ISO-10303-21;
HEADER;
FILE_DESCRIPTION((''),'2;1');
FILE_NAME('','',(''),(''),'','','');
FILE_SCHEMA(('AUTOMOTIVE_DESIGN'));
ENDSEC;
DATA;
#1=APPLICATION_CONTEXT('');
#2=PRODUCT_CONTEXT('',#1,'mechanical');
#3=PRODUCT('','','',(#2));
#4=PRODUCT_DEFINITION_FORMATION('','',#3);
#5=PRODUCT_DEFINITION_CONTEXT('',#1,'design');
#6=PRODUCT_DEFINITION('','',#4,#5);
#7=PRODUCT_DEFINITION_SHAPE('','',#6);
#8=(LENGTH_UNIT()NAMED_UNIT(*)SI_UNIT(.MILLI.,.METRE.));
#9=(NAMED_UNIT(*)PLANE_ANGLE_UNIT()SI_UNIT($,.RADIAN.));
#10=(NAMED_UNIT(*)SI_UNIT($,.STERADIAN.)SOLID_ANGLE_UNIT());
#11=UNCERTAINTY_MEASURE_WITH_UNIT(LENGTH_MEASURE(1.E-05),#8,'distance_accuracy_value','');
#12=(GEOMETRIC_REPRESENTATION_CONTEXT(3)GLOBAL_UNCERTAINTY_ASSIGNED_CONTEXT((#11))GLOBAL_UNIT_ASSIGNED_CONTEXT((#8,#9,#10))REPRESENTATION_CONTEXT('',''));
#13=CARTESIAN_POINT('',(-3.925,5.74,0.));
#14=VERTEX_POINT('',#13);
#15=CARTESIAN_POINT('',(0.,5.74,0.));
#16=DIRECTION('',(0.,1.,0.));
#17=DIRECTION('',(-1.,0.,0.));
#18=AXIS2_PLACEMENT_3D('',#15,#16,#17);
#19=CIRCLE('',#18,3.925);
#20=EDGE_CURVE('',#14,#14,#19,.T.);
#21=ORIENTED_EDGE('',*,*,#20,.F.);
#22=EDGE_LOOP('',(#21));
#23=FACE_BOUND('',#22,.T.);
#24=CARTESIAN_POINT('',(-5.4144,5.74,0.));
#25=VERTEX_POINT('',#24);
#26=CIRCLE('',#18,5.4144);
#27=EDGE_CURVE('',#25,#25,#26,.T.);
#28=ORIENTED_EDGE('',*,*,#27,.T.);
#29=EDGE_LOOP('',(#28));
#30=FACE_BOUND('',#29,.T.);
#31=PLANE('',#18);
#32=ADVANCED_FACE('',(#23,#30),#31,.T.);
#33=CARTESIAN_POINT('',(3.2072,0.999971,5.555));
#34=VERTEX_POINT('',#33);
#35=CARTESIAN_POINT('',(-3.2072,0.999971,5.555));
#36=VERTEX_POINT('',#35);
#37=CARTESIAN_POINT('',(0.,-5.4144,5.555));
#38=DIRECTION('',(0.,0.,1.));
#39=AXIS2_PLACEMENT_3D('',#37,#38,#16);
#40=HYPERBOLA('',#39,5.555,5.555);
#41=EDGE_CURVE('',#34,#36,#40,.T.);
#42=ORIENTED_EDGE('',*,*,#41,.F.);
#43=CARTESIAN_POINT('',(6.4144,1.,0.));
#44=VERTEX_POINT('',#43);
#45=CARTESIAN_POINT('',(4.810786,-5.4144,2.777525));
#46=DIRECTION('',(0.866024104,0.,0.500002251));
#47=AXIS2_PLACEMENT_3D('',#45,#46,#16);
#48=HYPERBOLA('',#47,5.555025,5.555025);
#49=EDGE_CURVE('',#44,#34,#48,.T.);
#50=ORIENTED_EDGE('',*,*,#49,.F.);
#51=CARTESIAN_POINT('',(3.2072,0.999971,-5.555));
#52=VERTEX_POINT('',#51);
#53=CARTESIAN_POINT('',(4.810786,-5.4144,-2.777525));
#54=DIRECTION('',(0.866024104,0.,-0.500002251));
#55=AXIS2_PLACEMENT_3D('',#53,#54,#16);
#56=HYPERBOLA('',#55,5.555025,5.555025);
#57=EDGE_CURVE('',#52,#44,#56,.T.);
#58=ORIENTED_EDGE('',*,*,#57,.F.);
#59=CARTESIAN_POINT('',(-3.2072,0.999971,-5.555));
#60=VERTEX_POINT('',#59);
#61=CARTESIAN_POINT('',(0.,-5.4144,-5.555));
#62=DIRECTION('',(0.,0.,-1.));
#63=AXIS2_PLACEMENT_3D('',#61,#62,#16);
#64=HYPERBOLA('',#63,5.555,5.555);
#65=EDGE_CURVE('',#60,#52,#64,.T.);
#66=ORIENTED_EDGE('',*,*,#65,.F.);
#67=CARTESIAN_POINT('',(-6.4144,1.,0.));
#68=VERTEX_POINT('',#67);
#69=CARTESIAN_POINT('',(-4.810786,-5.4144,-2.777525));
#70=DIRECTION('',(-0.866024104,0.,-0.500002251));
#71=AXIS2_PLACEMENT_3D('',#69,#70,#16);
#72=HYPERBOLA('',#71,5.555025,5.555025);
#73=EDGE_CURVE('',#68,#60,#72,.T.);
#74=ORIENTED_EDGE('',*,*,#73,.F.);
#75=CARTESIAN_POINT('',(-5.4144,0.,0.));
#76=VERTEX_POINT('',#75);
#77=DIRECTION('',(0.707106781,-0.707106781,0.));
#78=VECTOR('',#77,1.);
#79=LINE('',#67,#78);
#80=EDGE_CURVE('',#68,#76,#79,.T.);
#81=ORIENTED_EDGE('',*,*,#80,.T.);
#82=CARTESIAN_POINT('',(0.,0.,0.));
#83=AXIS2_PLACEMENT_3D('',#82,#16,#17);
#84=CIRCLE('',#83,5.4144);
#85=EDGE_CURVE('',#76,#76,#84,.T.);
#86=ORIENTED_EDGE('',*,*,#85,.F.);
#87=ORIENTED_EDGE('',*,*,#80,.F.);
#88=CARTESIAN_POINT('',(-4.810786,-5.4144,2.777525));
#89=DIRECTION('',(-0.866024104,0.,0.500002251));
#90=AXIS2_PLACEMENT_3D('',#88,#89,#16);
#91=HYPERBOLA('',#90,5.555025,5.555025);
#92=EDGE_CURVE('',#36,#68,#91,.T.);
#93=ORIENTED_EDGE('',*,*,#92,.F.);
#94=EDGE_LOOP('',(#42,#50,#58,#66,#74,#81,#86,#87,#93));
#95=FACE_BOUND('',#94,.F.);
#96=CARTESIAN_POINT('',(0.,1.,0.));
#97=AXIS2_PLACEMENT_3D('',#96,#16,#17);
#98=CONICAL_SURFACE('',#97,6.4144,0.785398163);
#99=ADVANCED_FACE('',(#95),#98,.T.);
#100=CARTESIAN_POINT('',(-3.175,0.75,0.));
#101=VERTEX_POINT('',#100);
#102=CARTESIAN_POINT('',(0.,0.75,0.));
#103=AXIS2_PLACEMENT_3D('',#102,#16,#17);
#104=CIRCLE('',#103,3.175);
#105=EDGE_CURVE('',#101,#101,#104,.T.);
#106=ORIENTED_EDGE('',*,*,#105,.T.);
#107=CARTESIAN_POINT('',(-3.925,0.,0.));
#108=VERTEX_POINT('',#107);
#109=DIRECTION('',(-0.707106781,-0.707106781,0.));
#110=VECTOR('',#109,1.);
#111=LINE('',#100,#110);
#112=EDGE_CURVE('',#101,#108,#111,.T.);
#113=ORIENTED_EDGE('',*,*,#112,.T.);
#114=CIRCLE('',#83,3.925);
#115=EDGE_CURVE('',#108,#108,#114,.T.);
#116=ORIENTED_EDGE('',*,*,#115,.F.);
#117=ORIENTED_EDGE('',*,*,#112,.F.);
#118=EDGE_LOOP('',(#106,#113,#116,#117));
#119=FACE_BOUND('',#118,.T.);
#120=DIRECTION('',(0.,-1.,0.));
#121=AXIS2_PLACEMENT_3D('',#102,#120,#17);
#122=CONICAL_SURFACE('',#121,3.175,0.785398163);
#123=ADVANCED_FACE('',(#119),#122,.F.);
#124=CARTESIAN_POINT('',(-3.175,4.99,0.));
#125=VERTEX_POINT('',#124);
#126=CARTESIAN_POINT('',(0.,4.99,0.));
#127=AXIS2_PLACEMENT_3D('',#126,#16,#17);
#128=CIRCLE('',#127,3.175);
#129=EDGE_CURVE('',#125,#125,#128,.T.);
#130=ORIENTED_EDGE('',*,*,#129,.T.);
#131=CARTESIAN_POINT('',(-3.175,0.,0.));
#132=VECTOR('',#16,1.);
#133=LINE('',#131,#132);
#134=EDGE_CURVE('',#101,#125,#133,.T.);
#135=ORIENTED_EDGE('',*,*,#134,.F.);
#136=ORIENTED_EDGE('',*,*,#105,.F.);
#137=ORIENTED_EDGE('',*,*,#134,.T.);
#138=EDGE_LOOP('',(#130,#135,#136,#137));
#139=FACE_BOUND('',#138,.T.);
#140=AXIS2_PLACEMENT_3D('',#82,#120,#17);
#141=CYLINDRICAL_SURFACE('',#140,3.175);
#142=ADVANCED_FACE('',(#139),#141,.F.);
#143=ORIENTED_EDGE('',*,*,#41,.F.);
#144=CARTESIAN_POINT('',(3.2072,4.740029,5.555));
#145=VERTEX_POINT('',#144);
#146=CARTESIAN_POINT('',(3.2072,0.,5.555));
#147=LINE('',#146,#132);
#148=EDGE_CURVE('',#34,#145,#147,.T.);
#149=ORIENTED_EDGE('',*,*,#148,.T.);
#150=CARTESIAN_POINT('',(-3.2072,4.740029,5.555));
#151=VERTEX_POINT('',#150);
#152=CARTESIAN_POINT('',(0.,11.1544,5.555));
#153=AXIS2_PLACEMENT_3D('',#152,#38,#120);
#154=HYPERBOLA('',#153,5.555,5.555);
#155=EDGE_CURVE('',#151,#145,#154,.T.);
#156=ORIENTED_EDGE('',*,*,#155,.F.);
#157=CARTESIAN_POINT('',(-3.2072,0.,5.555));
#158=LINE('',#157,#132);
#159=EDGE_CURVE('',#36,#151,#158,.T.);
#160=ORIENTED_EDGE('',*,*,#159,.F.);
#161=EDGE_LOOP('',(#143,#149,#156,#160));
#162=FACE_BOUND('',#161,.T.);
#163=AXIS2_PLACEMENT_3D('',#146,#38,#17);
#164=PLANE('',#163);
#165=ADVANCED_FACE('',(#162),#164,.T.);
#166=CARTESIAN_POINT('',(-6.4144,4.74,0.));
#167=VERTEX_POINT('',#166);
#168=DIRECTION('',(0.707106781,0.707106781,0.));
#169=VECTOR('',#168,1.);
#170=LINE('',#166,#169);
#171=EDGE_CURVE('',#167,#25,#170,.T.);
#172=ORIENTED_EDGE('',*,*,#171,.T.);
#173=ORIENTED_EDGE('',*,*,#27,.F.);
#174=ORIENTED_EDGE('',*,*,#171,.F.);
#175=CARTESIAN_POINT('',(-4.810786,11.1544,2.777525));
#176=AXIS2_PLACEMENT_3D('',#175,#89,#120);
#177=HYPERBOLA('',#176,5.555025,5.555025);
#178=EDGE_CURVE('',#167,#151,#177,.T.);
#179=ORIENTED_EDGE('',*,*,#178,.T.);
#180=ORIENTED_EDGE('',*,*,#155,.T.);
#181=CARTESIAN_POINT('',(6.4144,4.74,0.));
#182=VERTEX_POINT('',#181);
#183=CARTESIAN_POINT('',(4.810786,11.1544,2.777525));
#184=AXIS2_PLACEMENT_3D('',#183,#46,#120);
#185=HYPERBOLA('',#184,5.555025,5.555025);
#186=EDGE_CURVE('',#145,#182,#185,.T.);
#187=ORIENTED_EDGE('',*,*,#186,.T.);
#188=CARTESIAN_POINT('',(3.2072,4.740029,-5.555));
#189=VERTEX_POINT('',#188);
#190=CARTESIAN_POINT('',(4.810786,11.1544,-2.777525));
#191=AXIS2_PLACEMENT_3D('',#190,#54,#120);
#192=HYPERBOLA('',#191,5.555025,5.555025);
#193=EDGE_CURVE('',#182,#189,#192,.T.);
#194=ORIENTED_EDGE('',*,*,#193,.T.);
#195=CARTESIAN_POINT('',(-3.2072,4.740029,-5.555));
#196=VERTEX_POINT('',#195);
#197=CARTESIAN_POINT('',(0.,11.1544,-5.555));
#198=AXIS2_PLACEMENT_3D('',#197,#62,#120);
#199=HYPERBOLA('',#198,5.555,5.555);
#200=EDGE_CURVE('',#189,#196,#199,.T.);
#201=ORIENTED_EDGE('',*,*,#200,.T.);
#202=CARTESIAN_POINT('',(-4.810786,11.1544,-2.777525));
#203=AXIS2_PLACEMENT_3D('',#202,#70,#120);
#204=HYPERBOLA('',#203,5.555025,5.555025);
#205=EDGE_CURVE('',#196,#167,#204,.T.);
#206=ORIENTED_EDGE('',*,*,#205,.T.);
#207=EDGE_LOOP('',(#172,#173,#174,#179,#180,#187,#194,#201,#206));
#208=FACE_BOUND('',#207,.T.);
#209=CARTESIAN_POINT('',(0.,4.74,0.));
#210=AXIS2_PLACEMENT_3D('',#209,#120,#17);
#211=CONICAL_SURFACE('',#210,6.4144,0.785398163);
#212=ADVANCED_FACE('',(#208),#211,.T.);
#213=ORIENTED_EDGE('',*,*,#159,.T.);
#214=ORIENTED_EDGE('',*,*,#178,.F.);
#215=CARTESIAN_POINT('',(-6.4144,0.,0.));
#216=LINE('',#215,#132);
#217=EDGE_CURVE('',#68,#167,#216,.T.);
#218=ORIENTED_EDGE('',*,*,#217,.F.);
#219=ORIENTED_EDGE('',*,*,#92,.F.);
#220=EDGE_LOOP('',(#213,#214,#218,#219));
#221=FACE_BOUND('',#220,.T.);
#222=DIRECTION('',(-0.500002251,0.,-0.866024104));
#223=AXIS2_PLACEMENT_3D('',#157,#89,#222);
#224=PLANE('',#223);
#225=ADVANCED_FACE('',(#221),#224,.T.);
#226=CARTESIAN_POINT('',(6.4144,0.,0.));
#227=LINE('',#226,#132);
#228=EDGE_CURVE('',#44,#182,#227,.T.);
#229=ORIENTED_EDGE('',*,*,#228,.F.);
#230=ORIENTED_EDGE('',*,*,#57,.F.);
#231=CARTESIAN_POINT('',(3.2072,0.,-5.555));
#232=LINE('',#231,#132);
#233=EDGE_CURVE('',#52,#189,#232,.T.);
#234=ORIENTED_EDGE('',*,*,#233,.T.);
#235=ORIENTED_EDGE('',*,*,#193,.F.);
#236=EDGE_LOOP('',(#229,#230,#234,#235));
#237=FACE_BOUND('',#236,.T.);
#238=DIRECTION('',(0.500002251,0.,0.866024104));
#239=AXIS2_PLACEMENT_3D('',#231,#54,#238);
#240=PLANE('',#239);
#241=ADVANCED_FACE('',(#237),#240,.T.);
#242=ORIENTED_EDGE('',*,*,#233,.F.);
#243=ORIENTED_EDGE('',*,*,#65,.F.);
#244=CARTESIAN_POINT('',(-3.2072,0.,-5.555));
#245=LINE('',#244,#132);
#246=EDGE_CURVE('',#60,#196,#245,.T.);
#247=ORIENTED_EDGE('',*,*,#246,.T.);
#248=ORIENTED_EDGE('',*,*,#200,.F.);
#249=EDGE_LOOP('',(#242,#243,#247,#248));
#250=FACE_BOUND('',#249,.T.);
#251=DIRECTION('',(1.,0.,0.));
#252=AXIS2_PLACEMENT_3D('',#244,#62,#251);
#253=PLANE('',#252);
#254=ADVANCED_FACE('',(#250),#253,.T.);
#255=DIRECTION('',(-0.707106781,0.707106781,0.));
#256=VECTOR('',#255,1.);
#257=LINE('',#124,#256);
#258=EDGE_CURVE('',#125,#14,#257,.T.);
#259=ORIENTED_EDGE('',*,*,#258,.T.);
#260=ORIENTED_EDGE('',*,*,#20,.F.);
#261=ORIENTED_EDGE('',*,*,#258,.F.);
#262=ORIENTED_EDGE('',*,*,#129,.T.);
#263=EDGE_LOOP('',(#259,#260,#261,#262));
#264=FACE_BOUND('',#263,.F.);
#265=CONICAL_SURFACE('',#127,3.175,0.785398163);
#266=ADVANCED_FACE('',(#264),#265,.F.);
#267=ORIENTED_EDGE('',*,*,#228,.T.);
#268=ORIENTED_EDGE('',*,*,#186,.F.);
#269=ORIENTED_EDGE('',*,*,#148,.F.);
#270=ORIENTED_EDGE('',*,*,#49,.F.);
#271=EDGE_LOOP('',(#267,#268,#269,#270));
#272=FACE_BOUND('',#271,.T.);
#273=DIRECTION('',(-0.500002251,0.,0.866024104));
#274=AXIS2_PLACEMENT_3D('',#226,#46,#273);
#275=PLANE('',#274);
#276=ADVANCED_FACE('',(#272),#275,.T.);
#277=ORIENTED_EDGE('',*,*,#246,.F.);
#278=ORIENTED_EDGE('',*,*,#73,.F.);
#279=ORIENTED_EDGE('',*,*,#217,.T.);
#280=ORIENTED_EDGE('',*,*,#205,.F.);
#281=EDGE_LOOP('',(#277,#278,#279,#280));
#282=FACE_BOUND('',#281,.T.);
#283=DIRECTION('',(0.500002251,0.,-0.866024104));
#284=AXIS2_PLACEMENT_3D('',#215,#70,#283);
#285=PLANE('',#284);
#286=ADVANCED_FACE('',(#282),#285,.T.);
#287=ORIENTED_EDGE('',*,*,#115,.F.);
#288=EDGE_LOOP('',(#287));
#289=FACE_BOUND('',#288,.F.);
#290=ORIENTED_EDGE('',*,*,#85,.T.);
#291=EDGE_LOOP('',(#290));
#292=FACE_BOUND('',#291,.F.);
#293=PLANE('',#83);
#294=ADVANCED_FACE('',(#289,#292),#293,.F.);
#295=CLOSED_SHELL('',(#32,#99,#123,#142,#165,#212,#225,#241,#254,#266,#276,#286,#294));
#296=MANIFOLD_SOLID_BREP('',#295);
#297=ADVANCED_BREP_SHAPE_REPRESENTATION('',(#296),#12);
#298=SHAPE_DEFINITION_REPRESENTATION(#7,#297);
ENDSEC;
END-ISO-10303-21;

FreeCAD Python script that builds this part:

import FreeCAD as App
import Part
import Sketcher

V = App.Vector
Q = App.Units.Quantity

doc = App.newDocument("Part")
params = doc.addObject("Spreadsheet::Sheet", "Params")
for row, (alias, value) in enumerate([
    ("sketch1_diameter", "6.35 mm"),
    ("pad1_length", "5.74 mm"),
    ("sketch2_width", "1 mm"),
    ("sketch2_width2", "0.75 mm"),
    ("groove_angle", "360 deg"),
], start=1):
    params.set(f"A{row}", alias)
    params.set(f"B{row}", "=" + value)
    params.setAlias(f"B{row}", alias)

body = doc.addObject("PartDesign::Body", "Body")

# Sketch on XZ plane
sketch1 = body.newObject("Sketcher::SketchObject", "Sketch")
sketch1.AttachmentSupport = (doc.getObject("XZ_Plane"), [""])
sketch1.MapMode = "FlatFace"
sketch1.addGeometry(Part.LineSegment(V(6.4, 0, 0), V(3.2, -5.6, 0)), False)
sketch1.addGeometry(Part.LineSegment(V(3.2, -5.6, 0), V(-3.2, -5.6, 0)), False)
sketch1.addGeometry(Part.LineSegment(V(-3.2, -5.6, 0), V(-6.4, 0, 0)), False)
sketch1.addGeometry(Part.LineSegment(V(-6.4, 0, 0), V(-3.2, 5.6, 0)), False)
sketch1.addGeometry(Part.LineSegment(V(-3.2, 5.6, 0), V(3.2, 5.6, 0)), False)
sketch1.addGeometry(Part.LineSegment(V(3.2, 5.6, 0), V(6.4, 0, 0)), False)
sketch1.addGeometry(Part.Circle(V(0, 0, 0), V(0, 0, 1), 3.2), False)
sketch1.addConstraint(Sketcher.Constraint("Coincident", 0, 2, 1, 1))
sketch1.addConstraint(Sketcher.Constraint("Coincident", 1, 2, 2, 1))
sketch1.addConstraint(Sketcher.Constraint("Coincident", 2, 2, 3, 1))
sketch1.addConstraint(Sketcher.Constraint("Coincident", 3, 2, 4, 1))
sketch1.addConstraint(Sketcher.Constraint("Coincident", 4, 2, 5, 1))
sketch1.addConstraint(Sketcher.Constraint("Coincident", 5, 2, 0, 1))
sketch1.addConstraint(Sketcher.Constraint("Horizontal", 1))
sketch1.addConstraint(Sketcher.Constraint("Horizontal", 4))
sketch1.addConstraint(Sketcher.Constraint("Coincident", 6, 3, -1, 1))
sketch1.addConstraint(Sketcher.Constraint("Symmetric", 0, 2, 3, 2, -1, 1))
sketch1.addConstraint(Sketcher.Constraint("Symmetric", 2, 2, 5, 2, -1, 1))
sketch1.addConstraint(Sketcher.Constraint("PointOnObject", 2, 2, -1))
sketch1.addConstraint(Sketcher.Constraint("Parallel", 2, 5))
sketch1.addConstraint(Sketcher.Constraint("Vertical", 1, 2, 3, 2))
sketch1.addConstraint(Sketcher.Constraint("Diameter", 6, 6.35))
sketch1.addConstraint(Sketcher.Constraint("Angle", 0, Q("-120.0001 deg")))
sketch1.addConstraint(Sketcher.Constraint("DistanceY", 1, 2, 3, 2, 11.11))
sketch1.addConstraint(Sketcher.Constraint("DistanceX", 1, 2, 1, 1, 6.4144))
sketch1.setExpression("Constraints[14]", "Params.sketch1_diameter")
pad1 = body.newObject("PartDesign::Pad", "Pad")
pad1.Profile = sketch1
pad1.setExpression("Length", "Params.pad1_length")
pad1.Reversed = True

# Sketch on XY plane
sketch2 = body.newObject("Sketcher::SketchObject", "Sketch001")
sketch2.AttachmentSupport = (doc.getObject("XY_Plane"), [""])
sketch2.MapMode = "FlatFace"
sketch2.addGeometry(Part.LineSegment(V(-6.4, 0, 0), V(-5.4, 0, 0)), False)
sketch2.addGeometry(Part.LineSegment(V(-5.4, 0, 0), V(-6.4, 1, 0)), False)
sketch2.addGeometry(Part.LineSegment(V(-6.4, 1, 0), V(-6.4, 0, 0)), False)
sketch2.addGeometry(Part.LineSegment(V(-3.9, 0, 0), V(-3.2, 0, 0)), False)
sketch2.addGeometry(Part.LineSegment(V(-3.2, 0, 0), V(-3.2, 0.8, 0)), False)
sketch2.addGeometry(Part.LineSegment(V(-3.2, 0.8, 0), V(-3.9, 0, 0)), False)
sketch2.addGeometry(Part.LineSegment(V(-6.4, 4.7, 0), V(-5.4, 5.7, 0)), False)
sketch2.addGeometry(Part.LineSegment(V(-5.4, 5.7, 0), V(-6.4, 5.7, 0)), False)
sketch2.addGeometry(Part.LineSegment(V(-6.4, 5.7, 0), V(-6.4, 4.7, 0)), False)
sketch2.addGeometry(Part.LineSegment(V(-3.2, 5, 0), V(-3.2, 5.7, 0)), False)
sketch2.addGeometry(Part.LineSegment(V(-3.2, 5.7, 0), V(-3.9, 5.7, 0)), False)
sketch2.addGeometry(Part.LineSegment(V(-3.9, 5.7, 0), V(-3.2, 5, 0)), False)
sketch2.addConstraint(Sketcher.Constraint("Coincident", 0, 2, 1, 1))
sketch2.addConstraint(Sketcher.Constraint("Coincident", 1, 2, 2, 1))
sketch2.addConstraint(Sketcher.Constraint("Coincident", 2, 2, 0, 1))
sketch2.addConstraint(Sketcher.Constraint("Coincident", 3, 2, 4, 1))
sketch2.addConstraint(Sketcher.Constraint("Coincident", 4, 2, 5, 1))
sketch2.addConstraint(Sketcher.Constraint("Coincident", 5, 2, 3, 1))
sketch2.addConstraint(Sketcher.Constraint("Coincident", 6, 2, 7, 1))
sketch2.addConstraint(Sketcher.Constraint("Coincident", 7, 2, 8, 1))
sketch2.addConstraint(Sketcher.Constraint("Coincident", 8, 2, 6, 1))
sketch2.addConstraint(Sketcher.Constraint("Coincident", 9, 2, 10, 1))
sketch2.addConstraint(Sketcher.Constraint("Coincident", 10, 2, 11, 1))
sketch2.addConstraint(Sketcher.Constraint("Coincident", 11, 2, 9, 1))
sketch2.addConstraint(Sketcher.Constraint("Horizontal", 0))
sketch2.addConstraint(Sketcher.Constraint("Vertical", 2))
sketch2.addConstraint(Sketcher.Constraint("Horizontal", 3))
sketch2.addConstraint(Sketcher.Constraint("Vertical", 4))
sketch2.addConstraint(Sketcher.Constraint("Horizontal", 7))
sketch2.addConstraint(Sketcher.Constraint("Vertical", 8))
sketch2.addConstraint(Sketcher.Constraint("Vertical", 9))
sketch2.addConstraint(Sketcher.Constraint("Horizontal", 10))
sketch2.addConstraint(Sketcher.Constraint("PointOnObject", 0, 2, -1))
sketch2.addConstraint(Sketcher.Constraint("PointOnObject", 3, 2, -1))
sketch2.addConstraint(Sketcher.Constraint("Perpendicular", 1, 5))
sketch2.addConstraint(Sketcher.Constraint("Parallel", 5, 6))
sketch2.addConstraint(Sketcher.Constraint("Perpendicular", 6, 11))
sketch2.addConstraint(Sketcher.Constraint("Horizontal", 7, 2, 9, 2))
sketch2.addConstraint(Sketcher.Constraint("Vertical", 0, 2, 6, 2))
sketch2.addConstraint(Sketcher.Constraint("Vertical", 2, 2, 7, 2))
sketch2.addConstraint(Sketcher.Constraint("Vertical", 4, 2, 9, 2))
sketch2.addConstraint(Sketcher.Constraint("Vertical", 5, 2, 10, 2))
sketch2.addConstraint(Sketcher.Constraint("Equal", 7, 2))
sketch2.addConstraint(Sketcher.Constraint("DistanceX", 0, 1, 0, 2, 1.0))
sketch2.addConstraint(Sketcher.Constraint("DistanceX", 3, 1, 3, 2, 0.75))
sketch2.addConstraint(Sketcher.Constraint("DistanceY", -1, 1, 6, 2, 5.74))
sketch2.addConstraint(Sketcher.Constraint("DistanceX", 3, 2, -1, 1, 3.175))
sketch2.addConstraint(Sketcher.Constraint("DistanceX", 0, 2, -1, 1, 5.4144))
sketch2.setExpression("Constraints[31]", "Params.sketch2_width")
sketch2.setExpression("Constraints[32]", "Params.sketch2_width2")
groove = body.newObject("PartDesign::Groove", "Groove")
groove.Profile = sketch2
groove.ReferenceAxis = (sketch2, ["V_Axis"])
groove.setExpression("Angle", "Params.groove_angle")

doc.recompute()
